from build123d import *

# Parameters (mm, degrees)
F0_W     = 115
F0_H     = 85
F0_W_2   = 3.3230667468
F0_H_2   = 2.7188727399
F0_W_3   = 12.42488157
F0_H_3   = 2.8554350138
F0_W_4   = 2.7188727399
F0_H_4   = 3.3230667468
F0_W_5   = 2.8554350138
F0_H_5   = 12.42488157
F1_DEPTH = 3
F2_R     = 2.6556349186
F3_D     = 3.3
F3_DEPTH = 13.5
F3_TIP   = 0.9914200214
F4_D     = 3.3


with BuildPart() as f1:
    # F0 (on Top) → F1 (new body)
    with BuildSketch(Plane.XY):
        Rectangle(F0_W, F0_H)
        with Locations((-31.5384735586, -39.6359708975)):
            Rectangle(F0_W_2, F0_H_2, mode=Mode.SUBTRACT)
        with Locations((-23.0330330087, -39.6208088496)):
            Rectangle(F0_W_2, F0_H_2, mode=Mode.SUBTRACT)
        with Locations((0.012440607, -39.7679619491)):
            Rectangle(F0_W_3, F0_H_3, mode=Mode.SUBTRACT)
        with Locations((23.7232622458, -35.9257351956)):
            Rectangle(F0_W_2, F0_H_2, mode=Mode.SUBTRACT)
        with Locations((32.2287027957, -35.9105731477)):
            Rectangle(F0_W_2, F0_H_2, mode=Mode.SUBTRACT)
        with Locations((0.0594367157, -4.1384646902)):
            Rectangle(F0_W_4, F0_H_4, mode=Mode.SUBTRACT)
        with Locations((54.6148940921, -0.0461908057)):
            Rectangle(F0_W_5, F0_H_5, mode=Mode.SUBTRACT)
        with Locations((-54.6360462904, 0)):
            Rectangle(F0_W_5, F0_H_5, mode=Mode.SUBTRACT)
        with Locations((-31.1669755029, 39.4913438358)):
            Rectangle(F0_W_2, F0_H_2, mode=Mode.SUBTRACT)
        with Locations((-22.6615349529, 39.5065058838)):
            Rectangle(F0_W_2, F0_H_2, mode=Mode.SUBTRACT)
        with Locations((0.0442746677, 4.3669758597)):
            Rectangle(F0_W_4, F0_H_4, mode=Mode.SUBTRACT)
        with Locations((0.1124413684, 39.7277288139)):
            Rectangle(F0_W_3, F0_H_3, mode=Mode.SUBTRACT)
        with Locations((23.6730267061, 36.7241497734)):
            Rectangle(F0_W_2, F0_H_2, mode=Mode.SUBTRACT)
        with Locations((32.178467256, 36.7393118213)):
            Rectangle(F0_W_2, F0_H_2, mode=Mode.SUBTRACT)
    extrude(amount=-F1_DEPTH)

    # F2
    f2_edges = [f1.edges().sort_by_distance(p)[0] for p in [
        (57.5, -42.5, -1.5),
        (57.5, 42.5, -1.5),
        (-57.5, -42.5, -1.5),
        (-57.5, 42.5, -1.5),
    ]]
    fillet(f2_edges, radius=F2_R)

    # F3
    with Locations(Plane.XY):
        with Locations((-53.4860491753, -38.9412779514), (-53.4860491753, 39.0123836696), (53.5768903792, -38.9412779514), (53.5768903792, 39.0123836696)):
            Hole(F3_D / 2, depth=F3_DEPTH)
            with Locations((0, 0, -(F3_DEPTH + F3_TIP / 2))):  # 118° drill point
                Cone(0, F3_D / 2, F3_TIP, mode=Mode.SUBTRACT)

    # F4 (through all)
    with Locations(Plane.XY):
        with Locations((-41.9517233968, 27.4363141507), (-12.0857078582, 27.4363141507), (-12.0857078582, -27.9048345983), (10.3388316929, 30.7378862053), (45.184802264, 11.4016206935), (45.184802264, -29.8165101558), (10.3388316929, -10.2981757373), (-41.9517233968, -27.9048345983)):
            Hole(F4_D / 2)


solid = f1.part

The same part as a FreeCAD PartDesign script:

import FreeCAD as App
import Part
import Sketcher

V = App.Vector


def edges_at(feature, points):
    """Names of the edges that pass closest to the given points."""
    edges = feature.Shape.Edges
    near = lambda p: min(range(len(edges)), key=lambda i: edges[i].distToShape(Part.Vertex(*p))[0])
    return sorted({f"Edge{near(p) + 1}" for p in points})

doc = App.newDocument("Part")
body = doc.addObject("PartDesign::Body", "Body")

# Sketch on XY plane
sketch1 = body.newObject("Sketcher::SketchObject", "Sketch")
sketch1.AttachmentSupport = (doc.getObject("XY_Plane"), [""])
sketch1.MapMode = "FlatFace"
sketch1.addGeometry([
    Part.LineSegment(V(-57.5, 42.5, 0), V(-57.5, -42.5, 0)),  # 0
    Part.LineSegment(V(-57.5, -42.5, 0), V(57.5, -42.5, 0)),  # 1
    Part.LineSegment(V(57.5, -42.5, 0), V(57.5, 42.5, 0)),  # 2
    Part.LineSegment(V(57.5, 42.5, 0), V(-57.5, 42.5, 0)),  # 3
    Part.LineSegment(V(-29.9, -41, 0), V(-33.2, -41, 0)),  # 4
    Part.LineSegment(V(-33.2, -41, 0), V(-33.2, -38.3, 0)),  # 5
    Part.LineSegment(V(-33.2, -38.3, 0), V(-29.9, -38.3, 0)),  # 6
    Part.LineSegment(V(-29.9, -38.3, 0), V(-29.9, -41, 0)),  # 7
    Part.LineSegment(V(-21.4, -41, 0), V(-24.7, -41, 0)),  # 8
    Part.LineSegment(V(-24.7, -41, 0), V(-24.7, -38.3, 0)),  # 9
    Part.LineSegment(V(-24.7, -38.3, 0), V(-21.4, -38.3, 0)),  # 10
    Part.LineSegment(V(-21.4, -38.3, 0), V(-21.4, -41, 0)),  # 11
    Part.LineSegment(V(6.2, -41.2, 0), V(-6.2, -41.2, 0)),  # 12
    Part.LineSegment(V(-6.2, -41.2, 0), V(-6.2, -38.3, 0)),  # 13
    Part.LineSegment(V(-6.2, -38.3, 0), V(6.2, -38.3, 0)),  # 14
    Part.LineSegment(V(6.2, -38.3, 0), V(6.2, -41.2, 0)),  # 15
    Part.LineSegment(V(25.4, -37.3, 0), V(22.1, -37.3, 0)),  # 16
    Part.LineSegment(V(22.1, -37.3, 0), V(22.1, -34.6, 0)),  # 17
    Part.LineSegment(V(22.1, -34.6, 0), V(25.4, -34.6, 0)),  # 18
    Part.LineSegment(V(25.4, -34.6, 0), V(25.4, -37.3, 0)),  # 19
    Part.LineSegment(V(33.9, -37.3, 0), V(30.6, -37.3, 0)),  # 20
    Part.LineSegment(V(30.6, -37.3, 0), V(30.6, -34.6, 0)),  # 21
    Part.LineSegment(V(30.6, -34.6, 0), V(33.9, -34.6, 0)),  # 22
    Part.LineSegment(V(33.9, -34.6, 0), V(33.9, -37.3, 0)),  # 23
    Part.LineSegment(V(1.4, -5.8, 0), V(-1.3, -5.8, 0)),  # 24
    Part.LineSegment(V(-1.3, -5.8, 0), V(-1.3, -2.5, 0)),  # 25
    Part.LineSegment(V(-1.3, -2.5, 0), V(1.4, -2.5, 0)),  # 26
    Part.LineSegment(V(1.4, -2.5, 0), V(1.4, -5.8, 0)),  # 27
    Part.LineSegment(V(56, -6.3, 0), V(53.2, -6.3, 0)),  # 28
    Part.LineSegment(V(53.2, -6.3, 0), V(53.2, 6.2, 0)),  # 29
    Part.LineSegment(V(53.2, 6.2, 0), V(56, 6.2, 0)),  # 30
    Part.LineSegment(V(56, 6.2, 0), V(56, -6.3, 0)),  # 31
    Part.LineSegment(V(-53.2, -6.2, 0), V(-56.1, -6.2, 0)),  # 32
    Part.LineSegment(V(-56.1, -6.2, 0), V(-56.1, 6.2, 0)),  # 33
    Part.LineSegment(V(-56.1, 6.2, 0), V(-53.2, 6.2, 0)),  # 34
    Part.LineSegment(V(-53.2, 6.2, 0), V(-53.2, -6.2, 0)),  # 35
    Part.LineSegment(V(-29.5, 38.1, 0), V(-32.8, 38.1, 0)),  # 36
    Part.LineSegment(V(-32.8, 38.1, 0), V(-32.8, 40.9, 0)),  # 37
    Part.LineSegment(V(-32.8, 40.9, 0), V(-29.5, 40.9, 0)),  # 38
    Part.LineSegment(V(-29.5, 40.9, 0), V(-29.5, 38.1, 0)),  # 39
    Part.LineSegment(V(-21, 38.1, 0), V(-24.3, 38.1, 0)),  # 40
    Part.LineSegment(V(-24.3, 38.1, 0), V(-24.3, 40.9, 0)),  # 41
    Part.LineSegment(V(-24.3, 40.9, 0), V(-21, 40.9, 0)),  # 42
    Part.LineSegment(V(-21, 40.9, 0), V(-21, 38.1, 0)),  # 43
    Part.LineSegment(V(1.4, 2.7, 0), V(-1.3, 2.7, 0)),  # 44
    Part.LineSegment(V(-1.3, 2.7, 0), V(-1.3, 6, 0)),  # 45
    Part.LineSegment(V(-1.3, 6, 0), V(1.4, 6, 0)),  # 46
    Part.LineSegment(V(1.4, 6, 0), V(1.4, 2.7, 0)),  # 47
    Part.LineSegment(V(6.3, 38.3, 0), V(-6.1, 38.3, 0)),  # 48
    Part.LineSegment(V(-6.1, 38.3, 0), V(-6.1, 41.2, 0)),  # 49
    Part.LineSegment(V(-6.1, 41.2, 0), V(6.3, 41.2, 0)),  # 50
    Part.LineSegment(V(6.3, 41.2, 0), V(6.3, 38.3, 0)),  # 51
    Part.LineSegment(V(25.3, 35.4, 0), V(22, 35.4, 0)),  # 52
    Part.LineSegment(V(22, 35.4, 0), V(22, 38.1, 0)),  # 53
    Part.LineSegment(V(22, 38.1, 0), V(25.3, 38.1, 0)),  # 54
    Part.LineSegment(V(25.3, 38.1, 0), V(25.3, 35.4, 0)),  # 55
    Part.LineSegment(V(33.8, 35.4, 0), V(30.5, 35.4, 0)),  # 56
    Part.LineSegment(V(30.5, 35.4, 0), V(30.5, 38.1, 0)),  # 57
    Part.LineSegment(V(30.5, 38.1, 0), V(33.8, 38.1, 0)),  # 58
    Part.LineSegment(V(33.8, 38.1, 0), V(33.8, 35.4, 0)),  # 59
], False)
sketch1.addConstraint([
    Sketcher.Constraint("Coincident", 0, 2, 1, 1),
    Sketcher.Constraint("Coincident", 1, 2, 2, 1),
    Sketcher.Constraint("Coincident", 2, 2, 3, 1),
    Sketcher.Constraint("Coincident", 3, 2, 0, 1),
    Sketcher.Constraint("Coincident", 4, 2, 5, 1),
    Sketcher.Constraint("Coincident", 5, 2, 6, 1),
    Sketcher.Constraint("Coincident", 6, 2, 7, 1),
    Sketcher.Constraint("Coincident", 7, 2, 4, 1),
    Sketcher.Constraint("Coincident", 8, 2, 9, 1),
    Sketcher.Constraint("Coincident", 9, 2, 10, 1),
    Sketcher.Constraint("Coincident", 10, 2, 11, 1),
    Sketcher.Constraint("Coincident", 11, 2, 8, 1),
    Sketcher.Constraint("Coincident", 12, 2, 13, 1),
    Sketcher.Constraint("Coincident", 13, 2, 14, 1),
    Sketcher.Constraint("Coincident", 14, 2, 15, 1),
    Sketcher.Constraint("Coincident", 15, 2, 12, 1),
    Sketcher.Constraint("Coincident", 16, 2, 17, 1),
    Sketcher.Constraint("Coincident", 17, 2, 18, 1),
    Sketcher.Constraint("Coincident", 18, 2, 19, 1),
    Sketcher.Constraint("Coincident", 19, 2, 16, 1),
    Sketcher.Constraint("Coincident", 20, 2, 21, 1),
    Sketcher.Constraint("Coincident", 21, 2, 22, 1),
    Sketcher.Constraint("Coincident", 22, 2, 23, 1),
    Sketcher.Constraint("Coincident", 23, 2, 20, 1),
    Sketcher.Constraint("Coincident", 24, 2, 25, 1),
    Sketcher.Constraint("Coincident", 25, 2, 26, 1),
    Sketcher.Constraint("Coincident", 26, 2, 27, 1),
    Sketcher.Constraint("Coincident", 27, 2, 24, 1),
    Sketcher.Constraint("Coincident", 28, 2, 29, 1),
    Sketcher.Constraint("Coincident", 29, 2, 30, 1),
    Sketcher.Constraint("Coincident", 30, 2, 31, 1),
    Sketcher.Constraint("Coincident", 31, 2, 28, 1),
    Sketcher.Constraint("Coincident", 32, 2, 33, 1),
    Sketcher.Constraint("Coincident", 33, 2, 34, 1),
    Sketcher.Constraint("Coincident", 34, 2, 35, 1),
    Sketcher.Constraint("Coincident", 35, 2, 32, 1),
    Sketcher.Constraint("Coincident", 36, 2, 37, 1),
    Sketcher.Constraint("Coincident", 37, 2, 38, 1),
    Sketcher.Constraint("Coincident", 38, 2, 39, 1),
    Sketcher.Constraint("Coincident", 39, 2, 36, 1),
    Sketcher.Constraint("Coincident", 40, 2, 41, 1),
    Sketcher.Constraint("Coincident", 41, 2, 42, 1),
    Sketcher.Constraint("Coincident", 42, 2, 43, 1),
    Sketcher.Constraint("Coincident", 43, 2, 40, 1),
    Sketcher.Constraint("Coincident", 44, 2, 45, 1),
    Sketcher.Constraint("Coincident", 45, 2, 46, 1),
    Sketcher.Constraint("Coincident", 46, 2, 47, 1),
    Sketcher.Constraint("Coincident", 47, 2, 44, 1),
    Sketcher.Constraint("Coincident", 48, 2, 49, 1),
    Sketcher.Constraint("Coincident", 49, 2, 50, 1),
    Sketcher.Constraint("Coincident", 50, 2, 51, 1),
    Sketcher.Constraint("Coincident", 51, 2, 48, 1),
    Sketcher.Constraint("Coincident", 52, 2, 53, 1),
    Sketcher.Constraint("Coincident", 53, 2, 54, 1),
    Sketcher.Constraint("Coincident", 54, 2, 55, 1),
    Sketcher.Constraint("Coincident", 55, 2, 52, 1),
    Sketcher.Constraint("Coincident", 56, 2, 57, 1),
    Sketcher.Constraint("Coincident", 57, 2, 58, 1),
    Sketcher.Constraint("Coincident", 58, 2, 59, 1),
    Sketcher.Constraint("Coincident", 59, 2, 56, 1),
    Sketcher.Constraint("Vertical", 0),
    Sketcher.Constraint("Horizontal", 1),
    Sketcher.Constraint("Vertical", 2),
    Sketcher.Constraint("Horizontal", 3),
    Sketcher.Constraint("Horizontal", 4),
    Sketcher.Constraint("Vertical", 5),
    Sketcher.Constraint("Horizontal", 6),
    Sketcher.Constraint("Vertical", 7),
    Sketcher.Constraint("Horizontal", 8),
    Sketcher.Constraint("Vertical", 9),
    Sketcher.Constraint("Horizontal", 10),
    Sketcher.Constraint("Vertical", 11),
    Sketcher.Constraint("Horizontal", 12),
    Sketcher.Constraint("Vertical", 13),
    Sketcher.Constraint("Horizontal", 14),
    Sketcher.Constraint("Vertical", 15),
    Sketcher.Constraint("Horizontal", 16),
    Sketcher.Constraint("Vertical", 17),
    Sketcher.Constraint("Horizontal", 18),
    Sketcher.Constraint("Vertical", 19),
    Sketcher.Constraint("Horizontal", 20),
    Sketcher.Constraint("Vertical", 21),
    Sketcher.Constraint("Horizontal", 22),
    Sketcher.Constraint("Vertical", 23),
    Sketcher.Constraint("Horizontal", 24),
    Sketcher.Constraint("Vertical", 25),
    Sketcher.Constraint("Horizontal", 26),
    Sketcher.Constraint("Vertical", 27),
    Sketcher.Constraint("Horizontal", 28),
    Sketcher.Constraint("Vertical", 29),
    Sketcher.Constraint("Horizontal", 30),
    Sketcher.Constraint("Vertical", 31),
    Sketcher.Constraint("Horizontal", 32),
    Sketcher.Constraint("Vertical", 33),
    Sketcher.Constraint("Horizontal", 34),
    Sketcher.Constraint("Vertical", 35),
    Sketcher.Constraint("Horizontal", 36),
    Sketcher.Constraint("Vertical", 37),
    Sketcher.Constraint("Horizontal", 38),
    Sketcher.Constraint("Vertical", 39),
    Sketcher.Constraint("Horizontal", 40),
    Sketcher.Constraint("Vertical", 41),
    Sketcher.Constraint("Horizontal", 42),
    Sketcher.Constraint("Vertical", 43),
    Sketcher.Constraint("Horizontal", 44),
    Sketcher.Constraint("Vertical", 45),
    Sketcher.Constraint("Horizontal", 46),
    Sketcher.Constraint("Vertical", 47),
    Sketcher.Constraint("Horizontal", 48),
    Sketcher.Constraint("Vertical", 49),
    Sketcher.Constraint("Horizontal", 50),
    Sketcher.Constraint("Vertical", 51),
    Sketcher.Constraint("Horizontal", 52),
    Sketcher.Constraint("Vertical", 53),
    Sketcher.Constraint("Horizontal", 54),
    Sketcher.Constraint("Vertical", 55),
    Sketcher.Constraint("Horizontal", 56),
    Sketcher.Constraint("Vertical", 57),
    Sketcher.Constraint("Horizontal", 58),
    Sketcher.Constraint("Vertical", 59),
    Sketcher.Constraint("Symmetric", 0, 2, 2, 2, -1, 1),
    Sketcher.Constraint("Equal", 6, 8),
    Sketcher.Constraint("Equal", 10, 16),
    Sketcher.Constraint("Equal", 18, 20),
    Sketcher.Constraint("Equal", 30, 32),
    Sketcher.Constraint("Equal", 22, 36),
    Sketcher.Constraint("Equal", 38, 40),
    Sketcher.Constraint("Equal", 26, 44),
    Sketcher.Constraint("Equal", 14, 48),
    Sketcher.Constraint("Equal", 42, 52),
    Sketcher.Constraint("Equal", 54, 56),
    Sketcher.Constraint("Equal", 46, 5),
    Sketcher.Constraint("Equal", 7, 9),
    Sketcher.Constraint("Equal", 34, 13),
    Sketcher.Constraint("Equal", 11, 17),
    Sketcher.Constraint("Equal", 19, 21),
    Sketcher.Constraint("Equal", 58, 25),
    Sketcher.Constraint("Equal", 50, 29),
    Sketcher.Constraint("Equal", 31, 33),
    Sketcher.Constraint("Equal", 23, 37),
    Sketcher.Constraint("Equal", 39, 41),
    Sketcher.Constraint("Equal", 27, 45),
    Sketcher.Constraint("Equal", 15, 49),
    Sketcher.Constraint("Equal", 43, 53),
    Sketcher.Constraint("Equal", 55, 57),
    Sketcher.Constraint("DistanceX", 1, 1, 1, 2, 115.0),
    Sketcher.Constraint("DistanceY", 0, 2, 0, 1, 85.0),
    Sketcher.Constraint("DistanceX", 42, 2, -1, 1, 21.000002),
    Sketcher.Constraint("DistanceX", 12, 2, -1, 1, 6.2),
    Sketcher.Constraint("DistanceX", 24, 2, -1, 1, 1.3),
    Sketcher.Constraint("DistanceY", 24, 2, -1, 1, 5.799998),
    Sketcher.Constraint("DistanceX", 48, 2, -1, 1, 6.099999),
    Sketcher.Constraint("DistanceX", -1, 1, 58, 2, 33.840001),
    Sketcher.Constraint("DistanceY", 11, 2, 13, 2, 2.640001),
    Sketcher.Constraint("DistanceX", 12, 2, 12, 1, 12.424882),
    Sketcher.Constraint("DistanceX", 10, 2, -1, 1, 21.3715),
    Sketcher.Constraint("DistanceY", 17, 2, -1, 1, 34.566299),
    Sketcher.Constraint("DistanceX", 4, 2, 4, 1, 3.323067),
    Sketcher.Constraint("DistanceX", 24, 2, 24, 1, 2.718873),
    Sketcher.Constraint("DistanceX", 28, 2, 28, 1, 2.855435),
    Sketcher.Constraint("DistanceX", 6, 2, -1, 1, 29.87694),
    Sketcher.Constraint("DistanceY", 12, 2, -1, 1, 41.195679),
    Sketcher.Constraint("DistanceX", -1, 1, 16, 2, 22.061729),
    Sketcher.Constraint("DistanceX", -1, 1, 20, 2, 30.567169),
    Sketcher.Constraint("DistanceY", 20, 2, -1, 1, 37.27001),
    Sketcher.Constraint("DistanceY", 28, 2, -1, 1, 6.258632),
    Sketcher.Constraint("DistanceX", -1, 1, 30, 2, 56.042612),
    Sketcher.Constraint("DistanceY", 32, 2, -1, 1, 6.212441),
    Sketcher.Constraint("DistanceX", 34, 2, -1, 1, 53.208329),
    Sketcher.Constraint("DistanceX", 36, 2, -1, 1, 32.828509),
    Sketcher.Constraint("DistanceY", -1, 1, 37, 2, 40.85078),
    Sketcher.Constraint("DistanceY", -1, 1, 40, 2, 38.14707),
    Sketcher.Constraint("DistanceX", 44, 2, -1, 1, 1.315162),
    Sketcher.Constraint("DistanceY", -1, 1, 45, 2, 6.028509),
    Sketcher.Constraint("DistanceY", -1, 1, 48, 2, 38.300011),
    Sketcher.Constraint("DistanceX", -1, 1, 54, 2, 25.33456),
    Sketcher.Constraint("DistanceY", -1, 1, 57, 2, 38.098748),
    Sketcher.Constraint("DistanceY", 8, 2, 6, 2, 2.703711),
    Sketcher.Constraint("DistanceY", 53, 2, 50, 2, 3.07186),
])
pad1 = body.newObject("PartDesign::Pad", "Pad")
pad1.Profile = sketch1
pad1.Length = 3
pad1.Reversed = True
doc.recompute()

fillet = body.newObject("PartDesign::Fillet", "Fillet")
fillet.Base = (pad1, edges_at(pad1, [
    (57.5, -42.5, -1.5),
    (57.5, 42.5, -1.5),
    (-57.5, -42.5, -1.5),
    (-57.5, 42.5, -1.5),
]))
fillet.Radius = 2.655635

# Sketch on XY plane
sketch2 = body.newObject("Sketcher::SketchObject", "Sketch001")
sketch2.AttachmentSupport = (doc.getObject("XY_Plane"), [""])
sketch2.MapMode = "FlatFace"
sketch2.addGeometry([
    Part.Circle(V(-53.5, -38.9, 0), V(0, 0, 1), 1.6),
    Part.Circle(V(-53.5, 39, 0), V(0, 0, 1), 1.6),
    Part.Circle(V(53.6, -38.9, 0), V(0, 0, 1), 1.6),
    Part.Circle(V(53.6, 39, 0), V(0, 0, 1), 1.6),
], False)
sketch2.addConstraint([
    Sketcher.Constraint("Equal", 0, 1),
    Sketcher.Constraint("Equal", 1, 2),
    Sketcher.Constraint("Equal", 2, 3),
    Sketcher.Constraint("Horizontal", 0, 3, 2, 3),
    Sketcher.Constraint("Horizontal", 1, 3, 3, 3),
    Sketcher.Constraint("Vertical", 0, 3, 1, 3),
    Sketcher.Constraint("Vertical", 2, 3, 3, 3),
    Sketcher.Constraint("Diameter", 0, 3.3),
    Sketcher.Constraint("DistanceX", 0, 3, -1, 1, 53.486049),
    Sketcher.Constraint("DistanceX", -1, 1, 2, 3, 53.57689),
    Sketcher.Constraint("DistanceY", 0, 3, 1, 3, 77.953662),
    Sketcher.Constraint("DistanceY", 0, 3, -1, 1, 38.941278),
])
doc.recompute()
hole = body.newObject("PartDesign::Hole", "Hole")
hole.Profile = sketch2
hole.ThreadType = "None"
hole.Diameter = 3.3
hole.DepthType = "Dimension"
hole.Depth = 13.5
hole.DrillPoint = "Angled"
hole.DrillPointAngle = 118

# Sketch on XY plane
sketch3 = body.newObject("Sketcher::SketchObject", "Sketch002")
sketch3.AttachmentSupport = (doc.getObject("XY_Plane"), [""])
sketch3.MapMode = "FlatFace"
sketch3.addGeometry([
    Part.Circle(V(-42, 27.4, 0), V(0, 0, 1), 1.6),  # 0
    Part.Circle(V(-12.1, 27.4, 0), V(0, 0, 1), 1.6),  # 1
    Part.Circle(V(-12.1, -27.9, 0), V(0, 0, 1), 1.6),  # 2
    Part.Circle(V(10.3, 30.7, 0), V(0, 0, 1), 1.6),  # 3
    Part.Circle(V(45.2, 11.4, 0), V(0, 0, 1), 1.6),  # 4
    Part.Circle(V(45.2, -29.8, 0), V(0, 0, 1), 1.6),  # 5
    Part.Circle(V(10.3, -10.3, 0), V(0, 0, 1), 1.6),  # 6
    Part.Circle(V(-42, -27.9, 0), V(0, 0, 1), 1.6),  # 7
], False)
sketch3.addConstraint([
    Sketcher.Constraint("Equal", 0, 1),
    Sketcher.Constraint("Equal", 1, 2),
    Sketcher.Constraint("Equal", 2, 3),
    Sketcher.Constraint("Equal", 3, 4),
    Sketcher.Constraint("Equal", 4, 5),
    Sketcher.Constraint("Equal", 5, 6),
    Sketcher.Constraint("Equal", 6, 7),
    Sketcher.Constraint("Horizontal", 0, 3, 1, 3),
    Sketcher.Constraint("Horizontal", 2, 3, 7, 3),
    Sketcher.Constraint("Vertical", 1, 3, 2, 3),
    Sketcher.Constraint("Vertical", 4, 3, 5, 3),
    Sketcher.Constraint("Vertical", 3, 3, 6, 3),
    Sketcher.Constraint("Vertical", 0, 3, 7, 3),
    Sketcher.Constraint("Diameter", 0, 3.3),
    Sketcher.Constraint("DistanceX", -1, 1, 3, 3, 10.338832),
    Sketcher.Constraint("DistanceY", -1, 1, 4, 3, 11.401621),
    Sketcher.Constraint("DistanceY", 5, 3, -1, 1, 29.81651),
    Sketcher.Constraint("DistanceY", 2, 3, 1, 3, 55.341149),
    Sketcher.Constraint("DistanceX", 1, 3, 3, 3, 22.42454),
    Sketcher.Constraint("DistanceY", 2, 3, 3, 3, 58.642721),
    Sketcher.Constraint("DistanceX", 3, 3, 4, 3, 34.845971),
    Sketcher.Constraint("DistanceY", 2, 3, 6, 3, 17.606659),
    Sketcher.Constraint("DistanceX", 0, 3, -1, 1, 41.951723),
    Sketcher.Constraint("DistanceY", -1, 1, 0, 3, 27.436314),
])
doc.recompute()
hole2 = body.newObject("PartDesign::Hole", "Hole001")
hole2.Profile = sketch3
hole2.ThreadType = "None"
hole2.Diameter = 3.3
hole2.DepthType = "ThroughAll"

doc.recompute()
